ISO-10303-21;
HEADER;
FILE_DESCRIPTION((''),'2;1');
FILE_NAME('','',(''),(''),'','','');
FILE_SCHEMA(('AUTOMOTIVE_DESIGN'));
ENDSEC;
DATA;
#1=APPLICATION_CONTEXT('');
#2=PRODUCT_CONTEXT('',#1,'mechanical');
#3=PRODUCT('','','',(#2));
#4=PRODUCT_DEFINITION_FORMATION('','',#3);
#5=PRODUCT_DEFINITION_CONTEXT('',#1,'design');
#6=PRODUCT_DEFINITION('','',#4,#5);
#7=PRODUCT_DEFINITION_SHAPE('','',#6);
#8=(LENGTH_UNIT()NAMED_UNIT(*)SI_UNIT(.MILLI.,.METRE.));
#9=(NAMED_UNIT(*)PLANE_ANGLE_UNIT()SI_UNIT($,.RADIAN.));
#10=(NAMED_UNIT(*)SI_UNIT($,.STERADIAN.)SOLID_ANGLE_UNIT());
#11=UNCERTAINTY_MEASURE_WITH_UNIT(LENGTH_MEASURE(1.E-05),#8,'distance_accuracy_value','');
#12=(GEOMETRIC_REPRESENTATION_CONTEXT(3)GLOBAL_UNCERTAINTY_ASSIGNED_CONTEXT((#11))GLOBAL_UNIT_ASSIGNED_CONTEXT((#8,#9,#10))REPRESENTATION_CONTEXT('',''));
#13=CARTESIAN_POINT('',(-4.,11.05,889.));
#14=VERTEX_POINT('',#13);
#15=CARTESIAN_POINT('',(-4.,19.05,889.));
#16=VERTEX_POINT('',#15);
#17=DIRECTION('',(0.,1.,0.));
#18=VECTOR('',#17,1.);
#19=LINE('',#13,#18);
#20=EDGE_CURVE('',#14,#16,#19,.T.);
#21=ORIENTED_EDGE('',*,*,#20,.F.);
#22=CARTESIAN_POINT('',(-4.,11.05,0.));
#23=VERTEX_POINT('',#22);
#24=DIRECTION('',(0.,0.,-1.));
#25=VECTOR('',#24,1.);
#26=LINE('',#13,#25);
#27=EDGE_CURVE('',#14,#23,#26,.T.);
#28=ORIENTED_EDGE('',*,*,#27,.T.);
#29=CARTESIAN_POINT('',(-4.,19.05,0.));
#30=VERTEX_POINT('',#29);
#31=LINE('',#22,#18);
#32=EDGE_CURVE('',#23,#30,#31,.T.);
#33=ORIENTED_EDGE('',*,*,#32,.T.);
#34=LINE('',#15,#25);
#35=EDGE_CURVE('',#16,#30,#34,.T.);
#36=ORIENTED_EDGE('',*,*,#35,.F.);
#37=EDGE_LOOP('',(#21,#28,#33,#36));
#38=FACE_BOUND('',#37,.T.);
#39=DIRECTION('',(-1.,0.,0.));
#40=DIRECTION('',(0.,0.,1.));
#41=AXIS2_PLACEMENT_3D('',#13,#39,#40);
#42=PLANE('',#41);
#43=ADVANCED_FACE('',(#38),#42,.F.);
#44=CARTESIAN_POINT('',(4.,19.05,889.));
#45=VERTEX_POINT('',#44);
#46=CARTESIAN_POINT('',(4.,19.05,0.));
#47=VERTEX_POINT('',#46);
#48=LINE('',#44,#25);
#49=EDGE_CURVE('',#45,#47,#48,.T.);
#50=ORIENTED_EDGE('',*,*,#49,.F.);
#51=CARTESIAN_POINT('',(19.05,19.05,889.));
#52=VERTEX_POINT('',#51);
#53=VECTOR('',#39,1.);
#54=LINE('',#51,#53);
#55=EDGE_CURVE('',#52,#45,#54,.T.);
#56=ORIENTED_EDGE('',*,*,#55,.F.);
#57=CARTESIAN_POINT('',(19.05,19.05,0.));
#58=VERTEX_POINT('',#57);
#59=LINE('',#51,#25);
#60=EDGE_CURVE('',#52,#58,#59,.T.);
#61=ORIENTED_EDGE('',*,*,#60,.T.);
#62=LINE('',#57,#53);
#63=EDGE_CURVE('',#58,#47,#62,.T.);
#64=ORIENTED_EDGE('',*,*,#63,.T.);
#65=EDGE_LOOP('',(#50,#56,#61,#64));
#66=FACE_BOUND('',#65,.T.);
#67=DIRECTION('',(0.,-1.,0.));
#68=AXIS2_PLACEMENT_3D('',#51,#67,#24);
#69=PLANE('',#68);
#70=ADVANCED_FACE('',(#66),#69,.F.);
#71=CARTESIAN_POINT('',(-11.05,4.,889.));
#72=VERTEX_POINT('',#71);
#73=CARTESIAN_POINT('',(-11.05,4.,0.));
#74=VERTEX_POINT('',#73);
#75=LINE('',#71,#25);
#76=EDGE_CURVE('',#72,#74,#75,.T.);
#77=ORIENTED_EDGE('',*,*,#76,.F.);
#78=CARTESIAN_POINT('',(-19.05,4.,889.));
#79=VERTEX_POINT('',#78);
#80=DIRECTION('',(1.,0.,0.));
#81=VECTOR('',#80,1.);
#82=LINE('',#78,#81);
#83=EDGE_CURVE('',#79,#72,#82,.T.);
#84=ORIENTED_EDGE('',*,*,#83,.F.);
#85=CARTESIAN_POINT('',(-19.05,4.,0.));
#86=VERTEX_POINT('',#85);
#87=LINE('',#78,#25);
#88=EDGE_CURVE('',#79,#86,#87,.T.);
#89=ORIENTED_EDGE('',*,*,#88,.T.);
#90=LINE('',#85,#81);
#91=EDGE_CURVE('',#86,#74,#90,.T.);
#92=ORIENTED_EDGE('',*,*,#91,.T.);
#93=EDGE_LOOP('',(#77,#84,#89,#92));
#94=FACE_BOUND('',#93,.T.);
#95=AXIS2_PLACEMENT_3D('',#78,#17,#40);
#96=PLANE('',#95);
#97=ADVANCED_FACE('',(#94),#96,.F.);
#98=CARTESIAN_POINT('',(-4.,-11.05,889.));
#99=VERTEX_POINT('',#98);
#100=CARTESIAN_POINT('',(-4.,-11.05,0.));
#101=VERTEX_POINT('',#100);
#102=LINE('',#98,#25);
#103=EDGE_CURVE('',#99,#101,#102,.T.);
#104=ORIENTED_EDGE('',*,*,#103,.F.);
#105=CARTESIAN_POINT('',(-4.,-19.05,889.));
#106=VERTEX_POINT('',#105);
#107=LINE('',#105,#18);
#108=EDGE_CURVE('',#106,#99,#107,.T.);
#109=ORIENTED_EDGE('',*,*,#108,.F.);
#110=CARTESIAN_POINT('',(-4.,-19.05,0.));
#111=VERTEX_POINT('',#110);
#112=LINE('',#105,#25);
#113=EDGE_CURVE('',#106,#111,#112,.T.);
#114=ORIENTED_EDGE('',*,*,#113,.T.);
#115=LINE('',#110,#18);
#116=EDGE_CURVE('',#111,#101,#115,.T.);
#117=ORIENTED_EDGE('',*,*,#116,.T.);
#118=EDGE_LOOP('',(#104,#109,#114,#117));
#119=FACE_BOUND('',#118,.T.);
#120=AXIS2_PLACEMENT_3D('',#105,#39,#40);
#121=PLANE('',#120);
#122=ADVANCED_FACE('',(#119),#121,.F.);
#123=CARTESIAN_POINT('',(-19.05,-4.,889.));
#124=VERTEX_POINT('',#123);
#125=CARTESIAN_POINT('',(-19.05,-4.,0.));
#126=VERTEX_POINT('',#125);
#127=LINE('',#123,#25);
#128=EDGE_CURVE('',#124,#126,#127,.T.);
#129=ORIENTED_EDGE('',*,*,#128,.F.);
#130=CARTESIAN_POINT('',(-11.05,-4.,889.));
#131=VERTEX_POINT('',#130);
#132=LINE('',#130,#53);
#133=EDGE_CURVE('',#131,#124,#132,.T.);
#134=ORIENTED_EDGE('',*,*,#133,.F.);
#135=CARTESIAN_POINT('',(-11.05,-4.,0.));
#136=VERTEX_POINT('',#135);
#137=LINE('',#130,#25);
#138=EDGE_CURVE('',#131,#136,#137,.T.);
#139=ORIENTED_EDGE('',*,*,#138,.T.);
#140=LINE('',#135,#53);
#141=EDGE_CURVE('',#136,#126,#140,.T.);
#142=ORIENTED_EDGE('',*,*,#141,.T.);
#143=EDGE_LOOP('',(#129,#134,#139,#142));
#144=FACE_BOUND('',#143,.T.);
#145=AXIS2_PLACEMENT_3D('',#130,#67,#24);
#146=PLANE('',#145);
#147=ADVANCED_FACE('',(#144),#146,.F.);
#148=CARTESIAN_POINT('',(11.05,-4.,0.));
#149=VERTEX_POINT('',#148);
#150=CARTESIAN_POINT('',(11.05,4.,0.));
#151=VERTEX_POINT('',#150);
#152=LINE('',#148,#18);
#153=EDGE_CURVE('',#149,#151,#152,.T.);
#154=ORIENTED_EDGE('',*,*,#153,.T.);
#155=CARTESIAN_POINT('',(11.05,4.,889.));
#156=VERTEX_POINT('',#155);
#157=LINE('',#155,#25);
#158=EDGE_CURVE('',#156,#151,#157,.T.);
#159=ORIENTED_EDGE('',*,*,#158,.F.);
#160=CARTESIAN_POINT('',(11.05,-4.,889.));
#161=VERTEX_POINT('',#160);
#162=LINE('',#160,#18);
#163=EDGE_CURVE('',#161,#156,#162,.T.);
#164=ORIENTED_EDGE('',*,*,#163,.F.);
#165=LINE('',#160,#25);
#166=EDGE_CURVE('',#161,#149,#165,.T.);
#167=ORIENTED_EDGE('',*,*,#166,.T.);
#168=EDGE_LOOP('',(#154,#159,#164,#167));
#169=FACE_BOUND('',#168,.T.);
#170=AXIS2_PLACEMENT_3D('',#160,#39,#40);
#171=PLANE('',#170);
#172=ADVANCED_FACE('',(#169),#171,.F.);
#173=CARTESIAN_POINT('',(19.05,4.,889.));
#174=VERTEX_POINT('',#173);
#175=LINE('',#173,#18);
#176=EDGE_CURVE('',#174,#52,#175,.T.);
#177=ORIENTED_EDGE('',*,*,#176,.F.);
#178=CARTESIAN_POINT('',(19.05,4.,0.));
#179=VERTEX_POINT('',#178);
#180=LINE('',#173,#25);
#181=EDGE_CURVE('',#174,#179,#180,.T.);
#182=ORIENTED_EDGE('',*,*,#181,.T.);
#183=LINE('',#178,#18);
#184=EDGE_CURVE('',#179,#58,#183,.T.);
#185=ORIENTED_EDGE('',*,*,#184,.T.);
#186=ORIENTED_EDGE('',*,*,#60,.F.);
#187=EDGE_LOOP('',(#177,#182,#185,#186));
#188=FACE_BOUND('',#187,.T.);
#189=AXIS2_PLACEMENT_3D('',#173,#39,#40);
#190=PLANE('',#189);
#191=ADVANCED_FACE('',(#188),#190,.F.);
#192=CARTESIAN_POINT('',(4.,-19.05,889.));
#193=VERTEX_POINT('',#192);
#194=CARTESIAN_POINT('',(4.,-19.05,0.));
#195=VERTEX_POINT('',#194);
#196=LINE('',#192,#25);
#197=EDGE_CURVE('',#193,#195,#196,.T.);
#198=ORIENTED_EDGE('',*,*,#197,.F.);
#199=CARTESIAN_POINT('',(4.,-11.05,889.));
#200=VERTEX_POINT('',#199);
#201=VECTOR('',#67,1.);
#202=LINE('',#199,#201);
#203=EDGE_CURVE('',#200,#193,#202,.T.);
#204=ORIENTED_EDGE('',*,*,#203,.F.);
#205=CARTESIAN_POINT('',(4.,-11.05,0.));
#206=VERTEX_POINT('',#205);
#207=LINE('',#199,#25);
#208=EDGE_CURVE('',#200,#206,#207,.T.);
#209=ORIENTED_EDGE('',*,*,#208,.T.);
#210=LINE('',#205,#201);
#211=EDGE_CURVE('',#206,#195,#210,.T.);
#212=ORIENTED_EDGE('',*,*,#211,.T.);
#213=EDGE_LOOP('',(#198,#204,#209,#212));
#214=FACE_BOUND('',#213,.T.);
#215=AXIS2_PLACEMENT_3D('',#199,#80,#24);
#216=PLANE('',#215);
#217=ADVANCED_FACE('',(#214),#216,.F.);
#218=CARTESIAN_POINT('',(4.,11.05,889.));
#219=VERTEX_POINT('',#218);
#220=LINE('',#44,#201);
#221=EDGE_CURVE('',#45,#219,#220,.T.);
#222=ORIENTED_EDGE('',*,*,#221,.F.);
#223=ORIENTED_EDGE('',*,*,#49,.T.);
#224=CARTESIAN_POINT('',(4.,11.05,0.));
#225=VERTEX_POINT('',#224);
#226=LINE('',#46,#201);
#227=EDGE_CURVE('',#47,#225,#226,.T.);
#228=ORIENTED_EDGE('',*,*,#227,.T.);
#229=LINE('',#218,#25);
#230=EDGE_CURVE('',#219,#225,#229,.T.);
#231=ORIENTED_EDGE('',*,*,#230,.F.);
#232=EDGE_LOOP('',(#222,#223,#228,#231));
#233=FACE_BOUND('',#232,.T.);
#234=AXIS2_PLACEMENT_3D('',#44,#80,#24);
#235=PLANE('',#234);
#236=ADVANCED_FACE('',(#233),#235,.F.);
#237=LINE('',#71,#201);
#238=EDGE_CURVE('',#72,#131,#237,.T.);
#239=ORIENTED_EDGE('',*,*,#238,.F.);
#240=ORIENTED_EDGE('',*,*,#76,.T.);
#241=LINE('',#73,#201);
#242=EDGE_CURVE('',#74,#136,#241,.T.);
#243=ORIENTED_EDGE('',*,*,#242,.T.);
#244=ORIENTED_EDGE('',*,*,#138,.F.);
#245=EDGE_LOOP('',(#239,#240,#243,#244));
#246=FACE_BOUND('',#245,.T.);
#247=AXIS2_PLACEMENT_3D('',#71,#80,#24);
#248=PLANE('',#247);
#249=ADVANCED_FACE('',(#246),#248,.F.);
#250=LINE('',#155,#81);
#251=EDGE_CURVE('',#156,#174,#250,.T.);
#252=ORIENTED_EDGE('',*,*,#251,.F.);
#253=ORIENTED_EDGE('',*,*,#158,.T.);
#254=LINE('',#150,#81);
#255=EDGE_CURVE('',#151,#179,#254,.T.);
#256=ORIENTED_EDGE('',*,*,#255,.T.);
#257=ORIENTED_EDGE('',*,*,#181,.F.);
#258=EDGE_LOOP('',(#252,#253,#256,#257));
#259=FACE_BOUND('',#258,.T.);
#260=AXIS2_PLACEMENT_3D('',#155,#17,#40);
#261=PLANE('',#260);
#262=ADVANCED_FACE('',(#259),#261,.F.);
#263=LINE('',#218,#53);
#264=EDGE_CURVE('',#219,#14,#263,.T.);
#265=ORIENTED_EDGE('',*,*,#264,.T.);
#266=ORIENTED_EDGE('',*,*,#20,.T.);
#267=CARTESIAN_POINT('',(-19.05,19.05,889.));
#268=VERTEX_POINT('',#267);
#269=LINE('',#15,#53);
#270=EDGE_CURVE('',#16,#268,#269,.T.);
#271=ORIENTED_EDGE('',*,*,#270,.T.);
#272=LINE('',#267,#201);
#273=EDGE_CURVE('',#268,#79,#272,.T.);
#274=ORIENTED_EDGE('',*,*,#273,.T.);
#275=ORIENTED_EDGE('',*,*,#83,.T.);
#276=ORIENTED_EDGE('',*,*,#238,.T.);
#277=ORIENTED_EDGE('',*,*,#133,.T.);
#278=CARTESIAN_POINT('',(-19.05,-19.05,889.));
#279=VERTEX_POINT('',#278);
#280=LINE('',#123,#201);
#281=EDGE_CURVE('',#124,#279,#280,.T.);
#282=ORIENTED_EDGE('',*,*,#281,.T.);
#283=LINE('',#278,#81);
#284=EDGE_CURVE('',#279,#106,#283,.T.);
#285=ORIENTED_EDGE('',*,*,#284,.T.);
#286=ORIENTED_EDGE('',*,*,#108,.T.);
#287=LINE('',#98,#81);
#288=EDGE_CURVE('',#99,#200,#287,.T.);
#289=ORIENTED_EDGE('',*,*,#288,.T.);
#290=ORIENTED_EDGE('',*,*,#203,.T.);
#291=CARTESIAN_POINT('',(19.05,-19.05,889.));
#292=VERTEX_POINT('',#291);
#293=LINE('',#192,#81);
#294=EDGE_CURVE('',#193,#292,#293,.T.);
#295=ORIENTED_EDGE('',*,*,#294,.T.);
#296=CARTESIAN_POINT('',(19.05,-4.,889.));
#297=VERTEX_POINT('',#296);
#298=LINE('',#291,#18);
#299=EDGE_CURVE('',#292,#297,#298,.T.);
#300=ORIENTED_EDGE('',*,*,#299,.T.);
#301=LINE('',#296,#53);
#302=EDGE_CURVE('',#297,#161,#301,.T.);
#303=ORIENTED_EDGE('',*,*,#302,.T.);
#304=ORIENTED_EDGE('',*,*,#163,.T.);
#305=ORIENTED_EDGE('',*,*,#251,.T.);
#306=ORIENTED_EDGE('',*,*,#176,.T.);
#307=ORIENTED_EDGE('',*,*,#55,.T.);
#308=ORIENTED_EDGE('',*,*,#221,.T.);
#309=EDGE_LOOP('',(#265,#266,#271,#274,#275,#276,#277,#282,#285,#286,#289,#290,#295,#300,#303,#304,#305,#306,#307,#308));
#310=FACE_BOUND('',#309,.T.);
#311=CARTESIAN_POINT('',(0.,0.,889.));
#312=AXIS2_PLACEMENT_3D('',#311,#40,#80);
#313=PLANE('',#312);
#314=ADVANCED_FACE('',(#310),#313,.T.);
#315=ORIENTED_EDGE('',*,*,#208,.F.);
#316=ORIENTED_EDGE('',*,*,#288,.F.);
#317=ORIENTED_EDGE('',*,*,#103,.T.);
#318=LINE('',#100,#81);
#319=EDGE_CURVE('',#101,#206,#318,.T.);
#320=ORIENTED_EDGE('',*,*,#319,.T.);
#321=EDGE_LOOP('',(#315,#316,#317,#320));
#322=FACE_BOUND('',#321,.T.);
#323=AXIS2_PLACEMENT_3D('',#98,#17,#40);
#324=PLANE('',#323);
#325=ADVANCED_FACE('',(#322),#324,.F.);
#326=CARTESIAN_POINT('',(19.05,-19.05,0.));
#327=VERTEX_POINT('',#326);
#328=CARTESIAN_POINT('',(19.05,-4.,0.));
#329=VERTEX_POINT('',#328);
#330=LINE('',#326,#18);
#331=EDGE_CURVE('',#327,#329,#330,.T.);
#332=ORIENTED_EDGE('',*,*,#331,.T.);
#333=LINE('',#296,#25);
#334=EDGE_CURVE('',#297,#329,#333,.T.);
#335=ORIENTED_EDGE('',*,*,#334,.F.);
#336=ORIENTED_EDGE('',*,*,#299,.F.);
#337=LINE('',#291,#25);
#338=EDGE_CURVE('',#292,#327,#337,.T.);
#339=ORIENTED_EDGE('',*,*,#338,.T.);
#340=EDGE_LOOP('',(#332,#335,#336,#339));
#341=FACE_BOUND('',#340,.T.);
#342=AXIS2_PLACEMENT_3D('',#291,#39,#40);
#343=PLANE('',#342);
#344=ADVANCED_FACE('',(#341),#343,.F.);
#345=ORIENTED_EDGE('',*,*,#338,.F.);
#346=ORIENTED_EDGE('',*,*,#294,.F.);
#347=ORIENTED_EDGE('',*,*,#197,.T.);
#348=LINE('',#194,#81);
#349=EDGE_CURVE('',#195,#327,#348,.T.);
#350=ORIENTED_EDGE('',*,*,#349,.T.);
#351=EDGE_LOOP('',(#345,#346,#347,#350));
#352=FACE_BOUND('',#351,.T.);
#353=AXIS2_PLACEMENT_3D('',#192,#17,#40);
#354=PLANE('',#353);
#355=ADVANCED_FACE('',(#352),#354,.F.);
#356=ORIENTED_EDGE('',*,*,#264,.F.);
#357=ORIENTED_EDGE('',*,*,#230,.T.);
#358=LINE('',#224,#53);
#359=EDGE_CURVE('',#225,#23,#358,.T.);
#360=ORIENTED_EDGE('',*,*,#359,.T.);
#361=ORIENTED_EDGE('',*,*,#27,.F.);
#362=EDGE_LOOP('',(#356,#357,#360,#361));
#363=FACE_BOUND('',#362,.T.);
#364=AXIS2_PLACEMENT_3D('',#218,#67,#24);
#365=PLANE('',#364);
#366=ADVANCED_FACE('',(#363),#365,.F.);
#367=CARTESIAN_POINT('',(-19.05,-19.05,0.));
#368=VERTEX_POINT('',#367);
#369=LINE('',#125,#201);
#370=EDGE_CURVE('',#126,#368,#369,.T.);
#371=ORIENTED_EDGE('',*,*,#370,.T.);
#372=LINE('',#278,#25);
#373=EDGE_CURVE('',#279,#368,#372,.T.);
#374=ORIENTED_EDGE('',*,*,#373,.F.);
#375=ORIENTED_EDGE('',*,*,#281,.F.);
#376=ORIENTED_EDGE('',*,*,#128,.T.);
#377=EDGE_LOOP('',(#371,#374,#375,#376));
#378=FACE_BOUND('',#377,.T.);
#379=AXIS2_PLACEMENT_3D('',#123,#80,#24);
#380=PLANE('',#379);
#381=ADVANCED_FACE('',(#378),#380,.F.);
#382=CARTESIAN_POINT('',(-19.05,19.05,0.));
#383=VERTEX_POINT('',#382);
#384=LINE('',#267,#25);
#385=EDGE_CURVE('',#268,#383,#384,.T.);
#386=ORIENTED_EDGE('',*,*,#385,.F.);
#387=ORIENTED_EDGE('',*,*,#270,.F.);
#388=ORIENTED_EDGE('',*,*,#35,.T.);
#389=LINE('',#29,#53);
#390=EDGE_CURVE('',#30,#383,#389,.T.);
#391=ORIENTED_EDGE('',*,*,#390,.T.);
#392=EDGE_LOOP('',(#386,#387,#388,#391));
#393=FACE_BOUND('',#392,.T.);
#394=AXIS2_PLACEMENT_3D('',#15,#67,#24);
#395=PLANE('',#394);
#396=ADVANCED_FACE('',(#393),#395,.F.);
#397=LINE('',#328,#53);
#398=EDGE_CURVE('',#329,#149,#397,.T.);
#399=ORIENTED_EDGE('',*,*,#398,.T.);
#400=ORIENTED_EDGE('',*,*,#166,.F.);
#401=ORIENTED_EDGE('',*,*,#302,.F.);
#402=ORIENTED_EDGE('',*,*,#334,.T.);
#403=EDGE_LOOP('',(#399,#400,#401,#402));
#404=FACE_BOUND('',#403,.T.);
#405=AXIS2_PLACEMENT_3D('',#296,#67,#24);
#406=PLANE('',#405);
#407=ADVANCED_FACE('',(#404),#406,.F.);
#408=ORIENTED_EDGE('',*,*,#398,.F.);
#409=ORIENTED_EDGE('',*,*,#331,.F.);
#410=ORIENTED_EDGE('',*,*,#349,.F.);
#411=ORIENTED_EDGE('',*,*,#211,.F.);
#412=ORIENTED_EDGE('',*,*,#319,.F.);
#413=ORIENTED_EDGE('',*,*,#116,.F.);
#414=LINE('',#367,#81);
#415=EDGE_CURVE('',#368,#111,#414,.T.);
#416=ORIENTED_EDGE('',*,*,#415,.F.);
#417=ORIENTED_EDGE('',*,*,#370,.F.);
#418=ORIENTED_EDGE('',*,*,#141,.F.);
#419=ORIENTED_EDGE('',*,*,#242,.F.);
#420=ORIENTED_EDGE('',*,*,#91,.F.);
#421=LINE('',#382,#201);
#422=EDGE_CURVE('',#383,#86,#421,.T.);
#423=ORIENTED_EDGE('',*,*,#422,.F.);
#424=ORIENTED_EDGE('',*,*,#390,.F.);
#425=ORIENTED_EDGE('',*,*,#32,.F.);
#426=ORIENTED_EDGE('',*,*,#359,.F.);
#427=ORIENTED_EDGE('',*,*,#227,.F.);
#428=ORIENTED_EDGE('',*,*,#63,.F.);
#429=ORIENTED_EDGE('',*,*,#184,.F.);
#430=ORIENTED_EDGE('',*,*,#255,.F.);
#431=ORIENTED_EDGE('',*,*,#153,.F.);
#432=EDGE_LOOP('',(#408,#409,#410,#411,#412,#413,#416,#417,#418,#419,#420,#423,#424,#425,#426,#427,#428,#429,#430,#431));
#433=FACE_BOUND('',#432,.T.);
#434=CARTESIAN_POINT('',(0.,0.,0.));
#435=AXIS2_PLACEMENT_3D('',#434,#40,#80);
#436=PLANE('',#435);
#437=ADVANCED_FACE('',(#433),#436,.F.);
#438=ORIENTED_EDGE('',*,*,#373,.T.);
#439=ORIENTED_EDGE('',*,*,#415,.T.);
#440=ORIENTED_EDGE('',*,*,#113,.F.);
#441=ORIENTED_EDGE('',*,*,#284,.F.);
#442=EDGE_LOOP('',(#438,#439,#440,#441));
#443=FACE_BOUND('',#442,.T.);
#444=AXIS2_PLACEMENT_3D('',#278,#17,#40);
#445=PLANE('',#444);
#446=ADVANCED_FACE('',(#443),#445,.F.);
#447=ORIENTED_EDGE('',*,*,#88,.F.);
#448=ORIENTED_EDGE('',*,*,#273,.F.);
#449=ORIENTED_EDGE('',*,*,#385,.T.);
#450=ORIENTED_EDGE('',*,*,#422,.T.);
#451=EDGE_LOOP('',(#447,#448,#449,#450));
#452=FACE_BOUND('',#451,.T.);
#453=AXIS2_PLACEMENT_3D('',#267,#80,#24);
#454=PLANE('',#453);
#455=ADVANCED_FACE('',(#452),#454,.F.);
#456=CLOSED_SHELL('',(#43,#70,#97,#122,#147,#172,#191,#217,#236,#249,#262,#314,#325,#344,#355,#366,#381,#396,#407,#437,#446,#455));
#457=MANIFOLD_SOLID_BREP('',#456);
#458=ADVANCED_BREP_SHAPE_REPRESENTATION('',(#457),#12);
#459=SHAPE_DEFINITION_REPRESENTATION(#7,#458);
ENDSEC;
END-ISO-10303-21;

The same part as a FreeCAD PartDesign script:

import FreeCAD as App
import Part
import Sketcher
Q = App.Units.Quantity


def add_polygon(sketch, points):
    """Adds a closed chain of lines whose ends are joined by coincident constraints."""
    first, n = sketch.GeometryCount, len(points)
    for a, b in zip(points, points[1:] + points[:1]):
        sketch.addGeometry(Part.LineSegment(App.Vector(*a, 0), App.Vector(*b, 0)), False)
    for i in range(n):
        sketch.addConstraint(Sketcher.Constraint("Coincident", first + i, 2, first + (i + 1) % n, 1))

doc = App.newDocument("Part")
body = doc.addObject("PartDesign::Body", "Body")

sketch1 = body.newObject("Sketcher::SketchObject", "Sketch")
sketch1.AttachmentSupport = (doc.getObject("XY_Plane"), [""])
sketch1.MapMode = "FlatFace"
add_polygon(sketch1, [(-19, -19), (-4, -19), (-4, -11), (4, -11), (4, -19), (19, -19), (19, -4), (11, -4), (11, 4), (19, 4), (19, 19), (4, 19), (4, 11), (-4, 11), (-4, 19), (-19, 19), (-19, 4), (-11, 4), (-11, -4), (-19, -4)])
sketch1.addConstraint(Sketcher.Constraint("Horizontal", 0))
sketch1.addConstraint(Sketcher.Constraint("Vertical", 1))
sketch1.addConstraint(Sketcher.Constraint("Horizontal", 2))
sketch1.addConstraint(Sketcher.Constraint("Vertical", 3))
sketch1.addConstraint(Sketcher.Constraint("Horizontal", 4))
sketch1.addConstraint(Sketcher.Constraint("Vertical", 5))
sketch1.addConstraint(Sketcher.Constraint("Horizontal", 6))
sketch1.addConstraint(Sketcher.Constraint("Vertical", 7))
sketch1.addConstraint(Sketcher.Constraint("Horizontal", 8))
sketch1.addConstraint(Sketcher.Constraint("Vertical", 9))
sketch1.addConstraint(Sketcher.Constraint("Horizontal", 10))
sketch1.addConstraint(Sketcher.Constraint("Vertical", 11))
sketch1.addConstraint(Sketcher.Constraint("Horizontal", 12))
sketch1.addConstraint(Sketcher.Constraint("Vertical", 13))
sketch1.addConstraint(Sketcher.Constraint("Horizontal", 14))
sketch1.addConstraint(Sketcher.Constraint("Vertical", 15))
sketch1.addConstraint(Sketcher.Constraint("Horizontal", 16))
sketch1.addConstraint(Sketcher.Constraint("Vertical", 17))
sketch1.addConstraint(Sketcher.Constraint("Horizontal", 18))
sketch1.addConstraint(Sketcher.Constraint("Vertical", 19))
sketch1.addConstraint(Sketcher.Constraint("Symmetric", 0, 2, 10, 2, -1, 1))
sketch1.addConstraint(Sketcher.Constraint("Symmetric", 2, 2, 12, 2, -1, 1))
sketch1.addConstraint(Sketcher.Constraint("Symmetric", 4, 2, 14, 2, -1, 1))
sketch1.addConstraint(Sketcher.Constraint("Symmetric", 6, 2, 16, 2, -1, 1))
sketch1.addConstraint(Sketcher.Constraint("Symmetric", 8, 2, 18, 2, -1, 1))
sketch1.addConstraint(Sketcher.Constraint("Symmetric", 0, 2, 3, 2, -2))
sketch1.addConstraint(Sketcher.Constraint("Symmetric", 8, 2, 15, 2, -2))
sketch1.addConstraint(Sketcher.Constraint("Equal", 2, 6))
sketch1.addConstraint(Sketcher.Constraint("Equal", 18, 1))
sketch1.addConstraint(Sketcher.Constraint("Equal", 14, 5))
sketch1.addConstraint(Sketcher.Constraint("Equal", 3, 7))
sketch1.addConstraint(Sketcher.Constraint("DistanceX", 2, 1, 2, 2, Q("8 mm")))
sketch1.addConstraint(Sketcher.Constraint("DistanceX", 0, 1, 0, 2, Q("15.05 mm")))
pad1 = body.newObject("PartDesign::Pad", "Pad")
pad1.Profile = sketch1
pad1.Length = 889

doc.recompute()
